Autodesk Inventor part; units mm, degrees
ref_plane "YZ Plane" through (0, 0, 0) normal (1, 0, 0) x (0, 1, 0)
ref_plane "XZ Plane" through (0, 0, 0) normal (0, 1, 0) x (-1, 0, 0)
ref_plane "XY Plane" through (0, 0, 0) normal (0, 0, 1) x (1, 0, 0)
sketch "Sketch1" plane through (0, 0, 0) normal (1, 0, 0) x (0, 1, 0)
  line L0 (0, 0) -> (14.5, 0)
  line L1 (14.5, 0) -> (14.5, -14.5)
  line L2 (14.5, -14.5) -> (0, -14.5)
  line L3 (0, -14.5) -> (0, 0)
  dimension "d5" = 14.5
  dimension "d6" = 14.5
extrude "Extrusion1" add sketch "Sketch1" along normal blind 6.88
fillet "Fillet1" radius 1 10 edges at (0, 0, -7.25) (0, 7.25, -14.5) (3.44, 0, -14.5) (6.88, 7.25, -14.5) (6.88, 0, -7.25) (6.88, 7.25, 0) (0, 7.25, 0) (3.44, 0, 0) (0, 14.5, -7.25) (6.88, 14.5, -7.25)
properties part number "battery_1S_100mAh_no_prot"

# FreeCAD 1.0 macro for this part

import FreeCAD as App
import Part
import Sketcher


def edges_at(feature, points):
    """Names of the edges that pass closest to the given points."""
    edges = feature.Shape.Edges
    near = lambda p: min(range(len(edges)), key=lambda i: edges[i].distToShape(Part.Vertex(*p))[0])
    return sorted({f"Edge{near(p) + 1}" for p in points})

doc = App.newDocument("Part")
params = doc.addObject("Spreadsheet::Sheet", "Params")
for row, (alias, value) in enumerate([
    ("sketch1_width", "14.5 mm"),
    ("pad1_length", "6.88 mm"),
    ("fillet_radius", "1 mm"),
], start=1):
    params.set(f"A{row}", alias)
    params.set(f"B{row}", "=" + value)
    params.setAlias(f"B{row}", alias)

body = doc.addObject("PartDesign::Body", "Body")

# Sketch on YZ plane
sketch1 = doc.addObject("Sketcher::SketchObject", "Sketch")
body.addObject(sketch1)
sketch1.AttachmentSupport = (doc.YZ_Plane, [""])
sketch1.MapMode = "FlatFace"
sketch1.addGeometry(Part.LineSegment(App.Vector(14, 0, 0), App.Vector(0, 0, 0)), False)
sketch1.addGeometry(Part.LineSegment(App.Vector(0, 0, 0), App.Vector(0, -14, 0)), False)
sketch1.addGeometry(Part.LineSegment(App.Vector(0, -14, 0), App.Vector(14, -14, 0)), False)
sketch1.addGeometry(Part.LineSegment(App.Vector(14, -14, 0), App.Vector(14, 0, 0)), False)
sketch1.addConstraint(Sketcher.Constraint("Coincident", 0, 2, 1, 1))
sketch1.addConstraint(Sketcher.Constraint("Coincident", 1, 2, 2, 1))
sketch1.addConstraint(Sketcher.Constraint("Coincident", 2, 2, 3, 1))
sketch1.addConstraint(Sketcher.Constraint("Coincident", 3, 2, 0, 1))
sketch1.addConstraint(Sketcher.Constraint("Horizontal", 0))
sketch1.addConstraint(Sketcher.Constraint("Vertical", 1))
sketch1.addConstraint(Sketcher.Constraint("Horizontal", 2))
sketch1.addConstraint(Sketcher.Constraint("Vertical", 3))
sketch1.addConstraint(Sketcher.Constraint("Coincident", 0, 2, -1, 1))
sketch1.addConstraint(Sketcher.Constraint("Equal", 2, 1))
sketch1.addConstraint(Sketcher.Constraint("DistanceX", 0, 2, 0, 1, 14.5))
sketch1.setExpression("Constraints[10]", "Params.sketch1_width")
pad1 = doc.addObject("PartDesign::Pad", "Pad")
body.addObject(pad1)
pad1.Profile = sketch1
pad1.setExpression("Length", "Params.pad1_length")
doc.recompute()

fillet = doc.addObject("PartDesign::Fillet", "Fillet")
body.addObject(fillet)
fillet.Base = (pad1, edges_at(pad1, [
    (0, 0, -7.25),
    (0, 7.25, -14.5),
    (3.44, 0, -14.5),
    (6.88, 7.25, -14.5),
    (6.88, 0, -7.25),
    (6.88, 7.25, 0),
    (0, 7.25, 0),
    (3.44, 0, 0),
    (0, 14.5, -7.25),
    (6.88, 14.5, -7.25),
]))
fillet.setExpression("Radius", "Params.fillet_radius")

doc.recompute()
